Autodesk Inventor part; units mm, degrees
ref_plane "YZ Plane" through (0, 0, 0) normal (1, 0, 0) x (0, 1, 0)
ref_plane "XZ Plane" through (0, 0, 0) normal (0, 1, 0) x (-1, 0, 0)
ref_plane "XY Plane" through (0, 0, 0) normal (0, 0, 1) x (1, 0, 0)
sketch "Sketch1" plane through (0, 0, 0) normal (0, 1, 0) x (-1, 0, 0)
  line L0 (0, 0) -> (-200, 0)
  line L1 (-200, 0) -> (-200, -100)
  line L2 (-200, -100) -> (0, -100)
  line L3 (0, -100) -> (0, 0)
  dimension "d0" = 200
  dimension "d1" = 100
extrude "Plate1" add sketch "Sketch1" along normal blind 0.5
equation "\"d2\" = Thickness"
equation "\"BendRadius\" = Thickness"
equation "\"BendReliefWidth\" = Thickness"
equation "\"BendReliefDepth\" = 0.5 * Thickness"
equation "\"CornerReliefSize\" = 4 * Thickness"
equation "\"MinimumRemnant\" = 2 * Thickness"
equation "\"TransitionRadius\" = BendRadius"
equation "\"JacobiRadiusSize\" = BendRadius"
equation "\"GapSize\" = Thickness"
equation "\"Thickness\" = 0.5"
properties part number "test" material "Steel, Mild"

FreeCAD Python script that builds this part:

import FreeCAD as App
import Part
import Sketcher

V = App.Vector

doc = App.newDocument("Part")
params = doc.addObject("Spreadsheet::Sheet", "Params")
for row, (alias, value) in enumerate([
    ("sketch1_width", "200 mm"),
    ("sketch1_height", "100 mm"),
    ("pad1_length", "0.5 mm"),
], start=1):
    params.set(f"A{row}", alias)
    params.set(f"B{row}", "=" + value)
    params.setAlias(f"B{row}", alias)

body = doc.addObject("PartDesign::Body", "Body")

# Sketch on XZ plane
sketch1 = body.newObject("Sketcher::SketchObject", "Sketch")
sketch1.AttachmentSupport = (doc.getObject("XZ_Plane"), [""])
sketch1.MapMode = "FlatFace"
sketch1.addGeometry([
    Part.LineSegment(V(0, -100, 0), V(0, 0, 0)),
    Part.LineSegment(V(0, 0, 0), V(200, 0, 0)),
    Part.LineSegment(V(200, 0, 0), V(200, -100, 0)),
    Part.LineSegment(V(200, -100, 0), V(0, -100, 0)),
], False)
sketch1.addConstraint([
    Sketcher.Constraint("Coincident", 0, 2, 1, 1),
    Sketcher.Constraint("Coincident", 1, 2, 2, 1),
    Sketcher.Constraint("Coincident", 2, 2, 3, 1),
    Sketcher.Constraint("Coincident", 3, 2, 0, 1),
    Sketcher.Constraint("Vertical", 0),
    Sketcher.Constraint("Horizontal", 1),
    Sketcher.Constraint("Vertical", 2),
    Sketcher.Constraint("Horizontal", 3),
    Sketcher.Constraint("Coincident", 0, 2, -1, 1),
    Sketcher.Constraint("DistanceX", 1, 1, 1, 2, 200.0),
    Sketcher.Constraint("DistanceY", 0, 1, 0, 2, 100.0),
])
sketch1.setExpression("Constraints[9]", "Params.sketch1_width")
sketch1.setExpression("Constraints[10]", "Params.sketch1_height")
pad1 = body.newObject("PartDesign::Pad", "Pad")
pad1.Profile = sketch1
pad1.setExpression("Length", "Params.pad1_length")
pad1.Reversed = True

doc.recompute()
